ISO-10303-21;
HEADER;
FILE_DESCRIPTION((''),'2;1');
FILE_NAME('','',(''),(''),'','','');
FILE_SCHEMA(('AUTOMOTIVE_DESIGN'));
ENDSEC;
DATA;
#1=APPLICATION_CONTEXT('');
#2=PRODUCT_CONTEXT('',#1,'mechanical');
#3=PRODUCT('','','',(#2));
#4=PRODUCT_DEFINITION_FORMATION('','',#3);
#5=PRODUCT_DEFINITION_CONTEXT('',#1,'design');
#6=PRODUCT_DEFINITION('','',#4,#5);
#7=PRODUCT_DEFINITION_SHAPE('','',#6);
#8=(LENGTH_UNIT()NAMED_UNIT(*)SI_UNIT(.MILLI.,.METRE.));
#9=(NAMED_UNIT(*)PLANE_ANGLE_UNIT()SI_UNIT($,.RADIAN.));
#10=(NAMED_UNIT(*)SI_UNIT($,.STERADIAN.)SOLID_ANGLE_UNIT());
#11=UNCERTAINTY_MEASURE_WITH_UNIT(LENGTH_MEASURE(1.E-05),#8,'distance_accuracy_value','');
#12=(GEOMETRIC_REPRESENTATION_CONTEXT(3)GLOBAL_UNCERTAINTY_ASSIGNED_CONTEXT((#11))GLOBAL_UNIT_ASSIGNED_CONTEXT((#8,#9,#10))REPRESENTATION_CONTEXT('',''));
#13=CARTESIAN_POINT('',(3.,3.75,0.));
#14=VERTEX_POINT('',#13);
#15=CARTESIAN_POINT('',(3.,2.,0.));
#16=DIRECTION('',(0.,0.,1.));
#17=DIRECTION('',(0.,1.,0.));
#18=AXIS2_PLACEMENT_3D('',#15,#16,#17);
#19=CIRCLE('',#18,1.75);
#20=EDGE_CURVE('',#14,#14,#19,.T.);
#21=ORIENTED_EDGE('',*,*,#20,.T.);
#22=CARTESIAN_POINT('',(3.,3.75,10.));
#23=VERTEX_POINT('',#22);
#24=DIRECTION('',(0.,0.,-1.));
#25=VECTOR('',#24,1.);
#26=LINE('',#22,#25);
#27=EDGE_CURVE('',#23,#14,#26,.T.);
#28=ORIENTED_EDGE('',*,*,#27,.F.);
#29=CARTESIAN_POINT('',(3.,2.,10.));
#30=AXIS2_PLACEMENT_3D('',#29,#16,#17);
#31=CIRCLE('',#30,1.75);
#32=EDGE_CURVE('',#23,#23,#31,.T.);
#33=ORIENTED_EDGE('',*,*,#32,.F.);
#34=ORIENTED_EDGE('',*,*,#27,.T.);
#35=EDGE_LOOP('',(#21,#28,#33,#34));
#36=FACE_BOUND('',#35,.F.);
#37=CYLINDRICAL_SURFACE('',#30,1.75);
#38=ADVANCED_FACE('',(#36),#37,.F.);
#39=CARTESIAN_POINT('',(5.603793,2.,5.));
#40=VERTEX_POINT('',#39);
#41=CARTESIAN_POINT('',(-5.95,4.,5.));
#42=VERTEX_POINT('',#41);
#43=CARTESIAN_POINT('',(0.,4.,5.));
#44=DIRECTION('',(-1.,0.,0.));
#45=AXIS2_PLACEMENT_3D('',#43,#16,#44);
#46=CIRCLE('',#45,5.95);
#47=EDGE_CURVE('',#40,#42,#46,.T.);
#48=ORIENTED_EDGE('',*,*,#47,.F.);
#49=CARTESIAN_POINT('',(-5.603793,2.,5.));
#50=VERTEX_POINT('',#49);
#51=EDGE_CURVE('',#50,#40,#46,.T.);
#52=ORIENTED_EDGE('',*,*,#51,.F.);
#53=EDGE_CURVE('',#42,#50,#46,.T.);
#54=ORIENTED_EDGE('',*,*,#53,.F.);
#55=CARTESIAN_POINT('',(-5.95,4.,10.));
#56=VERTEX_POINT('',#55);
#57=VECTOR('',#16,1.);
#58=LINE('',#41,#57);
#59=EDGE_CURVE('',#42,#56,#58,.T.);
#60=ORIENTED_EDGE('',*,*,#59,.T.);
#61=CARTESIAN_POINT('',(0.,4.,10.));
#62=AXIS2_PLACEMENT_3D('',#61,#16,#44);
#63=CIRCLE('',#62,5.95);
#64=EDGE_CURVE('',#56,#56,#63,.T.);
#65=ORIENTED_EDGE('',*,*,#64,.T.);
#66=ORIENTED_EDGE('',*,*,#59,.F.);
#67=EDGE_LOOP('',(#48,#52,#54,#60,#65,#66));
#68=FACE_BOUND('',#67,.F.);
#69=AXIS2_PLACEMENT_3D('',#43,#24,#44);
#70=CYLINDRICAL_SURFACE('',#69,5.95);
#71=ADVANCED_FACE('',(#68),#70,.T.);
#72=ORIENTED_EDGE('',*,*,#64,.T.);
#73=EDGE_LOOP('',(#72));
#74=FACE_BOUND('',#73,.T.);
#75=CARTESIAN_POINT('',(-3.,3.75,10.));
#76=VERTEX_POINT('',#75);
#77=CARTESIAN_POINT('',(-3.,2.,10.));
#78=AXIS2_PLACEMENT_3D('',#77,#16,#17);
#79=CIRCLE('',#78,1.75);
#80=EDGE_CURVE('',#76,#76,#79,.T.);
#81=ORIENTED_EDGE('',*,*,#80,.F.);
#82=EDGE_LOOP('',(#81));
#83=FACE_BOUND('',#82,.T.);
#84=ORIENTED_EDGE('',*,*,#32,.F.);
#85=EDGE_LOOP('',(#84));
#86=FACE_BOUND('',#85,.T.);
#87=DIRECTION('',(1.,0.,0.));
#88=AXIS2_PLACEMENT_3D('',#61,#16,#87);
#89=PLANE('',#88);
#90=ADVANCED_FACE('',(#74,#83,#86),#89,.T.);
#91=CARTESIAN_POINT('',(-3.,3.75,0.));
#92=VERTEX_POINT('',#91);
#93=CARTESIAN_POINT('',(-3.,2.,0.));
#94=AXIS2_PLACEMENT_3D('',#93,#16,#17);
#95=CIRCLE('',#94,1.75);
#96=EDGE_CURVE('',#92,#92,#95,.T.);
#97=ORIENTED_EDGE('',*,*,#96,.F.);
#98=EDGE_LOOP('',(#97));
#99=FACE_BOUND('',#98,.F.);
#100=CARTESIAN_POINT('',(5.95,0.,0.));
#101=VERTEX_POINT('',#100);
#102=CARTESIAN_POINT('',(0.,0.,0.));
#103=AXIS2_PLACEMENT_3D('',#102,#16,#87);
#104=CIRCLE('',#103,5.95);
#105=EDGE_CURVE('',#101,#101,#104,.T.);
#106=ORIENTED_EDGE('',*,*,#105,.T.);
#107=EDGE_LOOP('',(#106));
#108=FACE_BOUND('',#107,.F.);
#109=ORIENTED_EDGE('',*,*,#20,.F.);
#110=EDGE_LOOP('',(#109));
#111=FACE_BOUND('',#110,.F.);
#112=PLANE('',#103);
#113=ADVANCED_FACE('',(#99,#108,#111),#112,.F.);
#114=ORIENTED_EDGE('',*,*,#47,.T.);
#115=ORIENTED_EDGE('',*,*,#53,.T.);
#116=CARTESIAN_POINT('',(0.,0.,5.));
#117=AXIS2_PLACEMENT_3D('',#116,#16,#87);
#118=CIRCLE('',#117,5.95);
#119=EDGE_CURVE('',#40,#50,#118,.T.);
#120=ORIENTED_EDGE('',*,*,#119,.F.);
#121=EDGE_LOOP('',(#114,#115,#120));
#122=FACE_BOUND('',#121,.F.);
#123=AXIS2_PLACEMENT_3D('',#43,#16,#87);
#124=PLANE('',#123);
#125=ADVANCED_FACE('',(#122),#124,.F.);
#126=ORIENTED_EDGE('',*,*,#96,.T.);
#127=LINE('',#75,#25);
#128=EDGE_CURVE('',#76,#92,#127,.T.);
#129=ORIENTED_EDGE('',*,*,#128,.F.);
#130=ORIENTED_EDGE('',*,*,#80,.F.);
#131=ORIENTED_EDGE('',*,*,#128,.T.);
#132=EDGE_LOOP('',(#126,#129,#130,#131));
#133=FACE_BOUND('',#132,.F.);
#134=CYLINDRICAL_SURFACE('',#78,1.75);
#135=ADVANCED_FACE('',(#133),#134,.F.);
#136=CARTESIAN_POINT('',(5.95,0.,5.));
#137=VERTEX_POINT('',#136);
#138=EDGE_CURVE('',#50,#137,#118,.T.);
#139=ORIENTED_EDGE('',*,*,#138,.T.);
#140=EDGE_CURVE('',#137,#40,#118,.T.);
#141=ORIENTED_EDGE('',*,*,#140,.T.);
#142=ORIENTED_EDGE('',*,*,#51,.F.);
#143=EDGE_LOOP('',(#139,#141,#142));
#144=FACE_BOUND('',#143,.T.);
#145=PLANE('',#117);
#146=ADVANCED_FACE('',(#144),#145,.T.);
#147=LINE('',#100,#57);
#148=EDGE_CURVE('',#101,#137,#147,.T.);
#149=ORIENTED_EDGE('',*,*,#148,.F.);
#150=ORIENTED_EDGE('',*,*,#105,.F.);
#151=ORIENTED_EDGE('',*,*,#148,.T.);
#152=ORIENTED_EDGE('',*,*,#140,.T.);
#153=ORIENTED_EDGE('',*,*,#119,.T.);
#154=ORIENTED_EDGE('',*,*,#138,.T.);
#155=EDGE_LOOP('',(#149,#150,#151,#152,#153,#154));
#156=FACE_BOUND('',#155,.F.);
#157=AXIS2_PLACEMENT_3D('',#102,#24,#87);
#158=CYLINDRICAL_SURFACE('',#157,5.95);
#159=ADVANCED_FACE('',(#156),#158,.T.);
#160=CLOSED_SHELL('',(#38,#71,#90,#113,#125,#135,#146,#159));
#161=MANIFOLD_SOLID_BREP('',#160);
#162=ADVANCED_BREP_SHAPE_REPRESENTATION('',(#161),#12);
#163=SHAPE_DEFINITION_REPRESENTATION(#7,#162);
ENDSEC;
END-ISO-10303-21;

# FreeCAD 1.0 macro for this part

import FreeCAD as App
import Part
import Sketcher
from FreeCAD import Vector
Q = App.Units.Quantity

doc = App.newDocument("Part")
body = doc.addObject("PartDesign::Body", "Body")

# Sketch on XY plane
sketch1 = body.newObject("Sketcher::SketchObject", "Sketch")
sketch1.AttachmentSupport = (doc.getObject("XY_Plane"), [""])
sketch1.MapMode = "FlatFace"
sketch1.addGeometry(Part.Circle(Vector(0, 0, 0), Vector(0, 0, 1), 6), False)
sketch1.addConstraint(Sketcher.Constraint("Coincident", 0, 3, -1, 1))
sketch1.addConstraint(Sketcher.Constraint("Diameter", 0, Q("11.9 mm")))
pad1 = body.newObject("PartDesign::Pad", "Pad")
pad1.Profile = sketch1
pad1.Length = 5

# Sketch on XY plane
sketch2 = body.newObject("Sketcher::SketchObject", "Sketch001")
sketch2.AttachmentSupport = (doc.getObject("XY_Plane"), [""])
sketch2.MapMode = "FlatFace"
sketch2.AttachmentOffset = App.Placement(Vector(0, 0, 5), App.Rotation())
sketch2.addGeometry(Part.Circle(Vector(0, 4, 0), Vector(0, 0, 1), 6), False)
sketch2.addConstraint(Sketcher.Constraint("PointOnObject", 0, 3, -2))
sketch2.addConstraint(Sketcher.Constraint("Diameter", 0, Q("11.9 mm")))
sketch2.addConstraint(Sketcher.Constraint("DistanceY", -1, 1, 0, 3, Q("4 mm")))
pad2 = body.newObject("PartDesign::Pad", "Pad001")
pad2.Profile = sketch2
pad2.Length = 5

# Sketch on XY plane
sketch3 = body.newObject("Sketcher::SketchObject", "Sketch002")
sketch3.AttachmentSupport = (doc.getObject("XY_Plane"), [""])
sketch3.MapMode = "FlatFace"
sketch3.AttachmentOffset = App.Placement(Vector(0, 0, 10), App.Rotation())
sketch3.addGeometry(Part.Circle(Vector(-3, 2, 0), Vector(0, 0, 1), 1.8), False)
sketch3.addGeometry(Part.Circle(Vector(3, 2, 0), Vector(0, 0, 1), 1.8), False)
sketch3.addConstraint(Sketcher.Constraint("Equal", 0, 1))
sketch3.addConstraint(Sketcher.Constraint("Symmetric", 0, 3, 1, 3, -2))
sketch3.addConstraint(Sketcher.Constraint("Diameter", 0, Q("3.5 mm")))
sketch3.addConstraint(Sketcher.Constraint("DistanceX", 0, 3, -1, 1, Q("3 mm")))
sketch3.addConstraint(Sketcher.Constraint("DistanceY", -1, 1, 0, 3, Q("2 mm")))
pocket1 = body.newObject("PartDesign::Pocket", "Pocket")
pocket1.Profile = sketch3
pocket1.Type = "ThroughAll"

doc.recompute()
